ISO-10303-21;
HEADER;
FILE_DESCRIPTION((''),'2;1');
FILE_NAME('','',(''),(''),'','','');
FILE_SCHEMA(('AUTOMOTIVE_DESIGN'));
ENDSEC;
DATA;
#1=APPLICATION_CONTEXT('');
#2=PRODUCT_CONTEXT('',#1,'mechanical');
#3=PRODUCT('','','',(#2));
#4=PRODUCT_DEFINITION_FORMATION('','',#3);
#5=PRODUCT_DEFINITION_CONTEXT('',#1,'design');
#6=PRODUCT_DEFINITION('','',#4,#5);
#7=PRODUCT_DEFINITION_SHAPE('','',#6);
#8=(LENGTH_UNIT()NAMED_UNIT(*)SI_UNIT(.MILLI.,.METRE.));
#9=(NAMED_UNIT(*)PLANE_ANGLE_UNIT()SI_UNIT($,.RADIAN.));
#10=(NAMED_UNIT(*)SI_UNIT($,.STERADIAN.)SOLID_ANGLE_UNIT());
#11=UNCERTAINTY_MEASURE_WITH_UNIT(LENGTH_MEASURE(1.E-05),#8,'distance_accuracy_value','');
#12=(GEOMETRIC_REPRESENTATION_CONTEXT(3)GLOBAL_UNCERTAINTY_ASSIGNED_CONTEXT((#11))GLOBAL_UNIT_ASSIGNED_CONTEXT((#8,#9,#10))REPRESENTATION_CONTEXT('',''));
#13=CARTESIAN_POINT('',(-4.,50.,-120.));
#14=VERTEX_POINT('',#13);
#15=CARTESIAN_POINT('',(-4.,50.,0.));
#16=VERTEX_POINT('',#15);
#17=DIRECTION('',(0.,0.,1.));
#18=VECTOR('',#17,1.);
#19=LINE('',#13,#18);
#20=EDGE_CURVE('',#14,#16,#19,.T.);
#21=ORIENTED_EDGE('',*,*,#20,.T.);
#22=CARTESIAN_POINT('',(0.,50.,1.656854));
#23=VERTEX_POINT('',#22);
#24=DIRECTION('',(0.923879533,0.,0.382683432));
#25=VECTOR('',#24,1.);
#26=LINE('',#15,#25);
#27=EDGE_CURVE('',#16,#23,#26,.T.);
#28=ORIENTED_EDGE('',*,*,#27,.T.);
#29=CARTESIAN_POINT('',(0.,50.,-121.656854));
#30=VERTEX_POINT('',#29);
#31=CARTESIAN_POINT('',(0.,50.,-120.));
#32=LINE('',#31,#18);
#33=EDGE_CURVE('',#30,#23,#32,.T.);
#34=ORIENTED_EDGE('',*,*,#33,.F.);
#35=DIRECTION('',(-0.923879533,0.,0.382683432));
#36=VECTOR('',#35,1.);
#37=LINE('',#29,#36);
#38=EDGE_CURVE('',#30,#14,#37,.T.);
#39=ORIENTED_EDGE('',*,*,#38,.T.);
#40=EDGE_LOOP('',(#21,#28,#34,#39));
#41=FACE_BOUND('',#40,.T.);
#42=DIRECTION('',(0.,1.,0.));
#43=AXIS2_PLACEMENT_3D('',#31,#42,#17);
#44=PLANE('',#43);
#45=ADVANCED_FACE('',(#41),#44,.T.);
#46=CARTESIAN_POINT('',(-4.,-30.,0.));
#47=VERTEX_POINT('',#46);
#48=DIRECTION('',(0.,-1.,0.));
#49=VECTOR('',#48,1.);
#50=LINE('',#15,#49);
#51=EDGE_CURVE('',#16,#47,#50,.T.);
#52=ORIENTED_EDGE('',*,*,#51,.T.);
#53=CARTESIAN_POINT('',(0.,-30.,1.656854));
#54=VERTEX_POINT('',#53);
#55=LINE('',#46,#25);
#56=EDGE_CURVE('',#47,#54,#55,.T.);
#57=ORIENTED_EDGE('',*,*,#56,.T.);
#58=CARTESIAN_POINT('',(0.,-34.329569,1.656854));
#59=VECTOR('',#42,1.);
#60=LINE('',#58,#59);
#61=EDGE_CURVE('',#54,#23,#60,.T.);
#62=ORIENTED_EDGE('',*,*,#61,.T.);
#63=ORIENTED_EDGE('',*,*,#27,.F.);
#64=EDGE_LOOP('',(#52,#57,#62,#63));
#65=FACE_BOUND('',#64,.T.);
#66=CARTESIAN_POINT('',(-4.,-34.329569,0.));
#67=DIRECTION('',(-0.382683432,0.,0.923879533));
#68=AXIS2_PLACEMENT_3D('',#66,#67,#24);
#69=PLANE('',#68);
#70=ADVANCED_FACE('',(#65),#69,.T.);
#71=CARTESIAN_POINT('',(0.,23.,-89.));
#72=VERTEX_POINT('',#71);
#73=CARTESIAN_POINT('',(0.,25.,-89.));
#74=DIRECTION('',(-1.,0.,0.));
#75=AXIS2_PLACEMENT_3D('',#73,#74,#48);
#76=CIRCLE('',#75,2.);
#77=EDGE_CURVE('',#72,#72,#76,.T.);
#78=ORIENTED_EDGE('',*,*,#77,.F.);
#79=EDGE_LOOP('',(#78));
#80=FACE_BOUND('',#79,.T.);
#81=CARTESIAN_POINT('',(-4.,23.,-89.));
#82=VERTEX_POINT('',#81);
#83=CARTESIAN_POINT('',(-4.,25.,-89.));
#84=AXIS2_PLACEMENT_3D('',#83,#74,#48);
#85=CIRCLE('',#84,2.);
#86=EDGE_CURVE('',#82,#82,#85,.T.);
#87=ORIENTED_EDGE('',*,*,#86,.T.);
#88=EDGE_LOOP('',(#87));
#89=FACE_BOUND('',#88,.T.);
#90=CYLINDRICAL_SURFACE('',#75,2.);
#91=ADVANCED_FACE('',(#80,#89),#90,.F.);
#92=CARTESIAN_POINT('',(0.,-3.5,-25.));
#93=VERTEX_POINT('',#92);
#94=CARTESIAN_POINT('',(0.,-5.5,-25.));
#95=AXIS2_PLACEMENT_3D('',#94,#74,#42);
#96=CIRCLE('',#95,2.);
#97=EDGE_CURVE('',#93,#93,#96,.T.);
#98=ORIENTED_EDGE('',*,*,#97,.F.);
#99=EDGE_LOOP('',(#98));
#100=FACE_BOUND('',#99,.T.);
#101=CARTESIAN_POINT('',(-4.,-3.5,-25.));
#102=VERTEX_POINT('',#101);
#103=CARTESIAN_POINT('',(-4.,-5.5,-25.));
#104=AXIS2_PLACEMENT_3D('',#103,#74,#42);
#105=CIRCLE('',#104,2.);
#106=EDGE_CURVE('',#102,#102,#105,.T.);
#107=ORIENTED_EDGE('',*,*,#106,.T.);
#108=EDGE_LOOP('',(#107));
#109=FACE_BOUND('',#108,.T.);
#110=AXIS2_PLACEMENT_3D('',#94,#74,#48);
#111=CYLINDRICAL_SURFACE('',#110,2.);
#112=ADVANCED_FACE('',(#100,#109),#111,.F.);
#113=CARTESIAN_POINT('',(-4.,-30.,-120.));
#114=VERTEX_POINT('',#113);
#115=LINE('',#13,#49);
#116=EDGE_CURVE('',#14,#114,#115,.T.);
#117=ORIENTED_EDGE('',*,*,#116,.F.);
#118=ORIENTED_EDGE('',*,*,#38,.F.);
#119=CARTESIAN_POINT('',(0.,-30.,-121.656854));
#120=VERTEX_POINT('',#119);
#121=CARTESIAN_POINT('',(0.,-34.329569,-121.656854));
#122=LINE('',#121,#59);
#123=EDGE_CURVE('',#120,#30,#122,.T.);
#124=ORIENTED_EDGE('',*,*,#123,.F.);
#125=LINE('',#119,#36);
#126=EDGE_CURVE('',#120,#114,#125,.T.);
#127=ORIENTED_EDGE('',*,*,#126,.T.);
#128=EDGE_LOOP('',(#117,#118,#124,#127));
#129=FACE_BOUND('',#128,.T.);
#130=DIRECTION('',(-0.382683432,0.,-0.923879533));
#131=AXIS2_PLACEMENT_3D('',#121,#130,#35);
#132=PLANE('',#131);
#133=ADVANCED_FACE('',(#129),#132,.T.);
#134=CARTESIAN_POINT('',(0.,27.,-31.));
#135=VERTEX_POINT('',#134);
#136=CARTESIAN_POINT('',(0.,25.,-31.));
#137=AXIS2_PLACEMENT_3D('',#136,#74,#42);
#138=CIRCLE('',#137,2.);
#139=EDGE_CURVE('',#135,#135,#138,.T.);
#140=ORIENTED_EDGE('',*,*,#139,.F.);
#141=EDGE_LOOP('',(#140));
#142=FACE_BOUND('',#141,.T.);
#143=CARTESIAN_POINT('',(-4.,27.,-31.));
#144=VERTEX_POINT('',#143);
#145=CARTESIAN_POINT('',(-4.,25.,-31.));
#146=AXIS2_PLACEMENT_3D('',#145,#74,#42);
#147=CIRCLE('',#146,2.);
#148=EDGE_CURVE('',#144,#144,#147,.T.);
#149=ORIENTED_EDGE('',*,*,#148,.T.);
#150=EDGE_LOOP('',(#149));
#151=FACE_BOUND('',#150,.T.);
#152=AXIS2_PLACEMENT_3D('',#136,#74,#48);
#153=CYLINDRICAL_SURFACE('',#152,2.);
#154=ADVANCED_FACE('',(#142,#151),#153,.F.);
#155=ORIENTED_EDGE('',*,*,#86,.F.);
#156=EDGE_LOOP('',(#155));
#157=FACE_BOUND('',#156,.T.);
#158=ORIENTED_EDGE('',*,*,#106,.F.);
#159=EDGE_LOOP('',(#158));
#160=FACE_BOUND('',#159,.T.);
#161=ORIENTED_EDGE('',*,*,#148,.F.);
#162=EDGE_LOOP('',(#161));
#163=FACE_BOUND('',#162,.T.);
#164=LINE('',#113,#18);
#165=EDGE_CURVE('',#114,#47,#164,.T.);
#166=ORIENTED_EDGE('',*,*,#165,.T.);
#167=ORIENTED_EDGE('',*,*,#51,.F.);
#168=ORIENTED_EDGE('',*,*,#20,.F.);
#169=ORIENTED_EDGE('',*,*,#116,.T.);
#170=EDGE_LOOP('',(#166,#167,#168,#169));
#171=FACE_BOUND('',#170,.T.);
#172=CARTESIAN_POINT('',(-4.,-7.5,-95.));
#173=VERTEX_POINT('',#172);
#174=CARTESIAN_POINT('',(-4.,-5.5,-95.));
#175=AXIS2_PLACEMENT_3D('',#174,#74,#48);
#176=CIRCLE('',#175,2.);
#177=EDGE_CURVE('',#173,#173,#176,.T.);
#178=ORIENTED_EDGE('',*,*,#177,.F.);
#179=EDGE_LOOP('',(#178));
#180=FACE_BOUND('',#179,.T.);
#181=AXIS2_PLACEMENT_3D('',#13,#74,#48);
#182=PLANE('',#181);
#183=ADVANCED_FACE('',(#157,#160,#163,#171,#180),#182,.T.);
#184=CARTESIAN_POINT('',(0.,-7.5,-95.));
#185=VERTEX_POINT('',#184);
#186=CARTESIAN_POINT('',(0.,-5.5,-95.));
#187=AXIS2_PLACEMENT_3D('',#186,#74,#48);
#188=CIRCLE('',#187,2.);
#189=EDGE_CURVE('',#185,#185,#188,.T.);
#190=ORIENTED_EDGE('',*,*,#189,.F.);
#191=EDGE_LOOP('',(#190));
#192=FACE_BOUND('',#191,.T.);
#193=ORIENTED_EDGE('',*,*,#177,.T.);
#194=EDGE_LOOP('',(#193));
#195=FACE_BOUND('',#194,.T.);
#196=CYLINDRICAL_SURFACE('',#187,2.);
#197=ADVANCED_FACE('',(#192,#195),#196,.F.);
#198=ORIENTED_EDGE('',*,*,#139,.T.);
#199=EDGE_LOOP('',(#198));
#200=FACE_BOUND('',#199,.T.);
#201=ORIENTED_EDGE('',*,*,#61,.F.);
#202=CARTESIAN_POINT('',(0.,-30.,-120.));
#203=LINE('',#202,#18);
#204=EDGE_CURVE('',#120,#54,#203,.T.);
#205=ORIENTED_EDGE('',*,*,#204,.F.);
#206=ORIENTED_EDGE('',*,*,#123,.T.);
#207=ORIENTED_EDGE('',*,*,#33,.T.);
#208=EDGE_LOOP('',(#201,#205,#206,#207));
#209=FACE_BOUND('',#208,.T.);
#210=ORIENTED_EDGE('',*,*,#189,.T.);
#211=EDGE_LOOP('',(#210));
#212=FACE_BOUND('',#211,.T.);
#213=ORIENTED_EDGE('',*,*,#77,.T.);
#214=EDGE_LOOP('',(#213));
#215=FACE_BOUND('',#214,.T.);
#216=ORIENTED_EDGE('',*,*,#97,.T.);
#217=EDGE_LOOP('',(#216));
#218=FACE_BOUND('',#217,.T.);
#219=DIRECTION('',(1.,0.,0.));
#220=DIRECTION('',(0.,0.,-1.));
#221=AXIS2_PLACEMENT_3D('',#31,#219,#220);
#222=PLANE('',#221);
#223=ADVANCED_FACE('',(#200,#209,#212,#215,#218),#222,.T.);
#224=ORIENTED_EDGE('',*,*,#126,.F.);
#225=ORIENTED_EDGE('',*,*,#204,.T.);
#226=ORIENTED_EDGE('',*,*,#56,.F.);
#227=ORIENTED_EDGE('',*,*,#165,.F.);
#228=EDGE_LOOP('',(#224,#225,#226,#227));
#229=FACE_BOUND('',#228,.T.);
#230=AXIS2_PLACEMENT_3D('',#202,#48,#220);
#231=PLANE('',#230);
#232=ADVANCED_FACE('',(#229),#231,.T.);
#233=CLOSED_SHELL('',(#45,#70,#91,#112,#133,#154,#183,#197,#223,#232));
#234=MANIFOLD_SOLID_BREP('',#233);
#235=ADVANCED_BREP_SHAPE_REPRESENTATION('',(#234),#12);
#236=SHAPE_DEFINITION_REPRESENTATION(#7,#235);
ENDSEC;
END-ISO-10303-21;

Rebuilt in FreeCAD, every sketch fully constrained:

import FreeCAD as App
import Part
import Sketcher
from FreeCAD import Vector
Q = App.Units.Quantity


def add_polygon(sketch, points):
    """Adds a closed chain of lines whose ends are joined by coincident constraints."""
    first, n = sketch.GeometryCount, len(points)
    for a, b in zip(points, points[1:] + points[:1]):
        sketch.addGeometry(Part.LineSegment(App.Vector(*a, 0), App.Vector(*b, 0)), False)
    for i in range(n):
        sketch.addConstraint(Sketcher.Constraint("Coincident", first + i, 2, first + (i + 1) % n, 1))

doc = App.newDocument("Part")
body = doc.addObject("PartDesign::Body", "Body")

sketch1 = body.newObject("Sketcher::SketchObject", "Sketch")
sketch1.AttachmentSupport = (doc.getObject("XY_Plane"), [""])
sketch1.MapMode = "FlatFace"
add_polygon(sketch1, [(-4, 50), (-4, -30), (0, -30), (0, 50)])
sketch1.addConstraint([
    Sketcher.Constraint("Vertical", 0),
    Sketcher.Constraint("Horizontal", 1),
    Sketcher.Constraint("Vertical", 2),
    Sketcher.Constraint("Horizontal", 3),
    Sketcher.Constraint("PointOnObject", 1, 2, -2),
    Sketcher.Constraint("DistanceX", 1, 1, 1, 2, 4.0),
    Sketcher.Constraint("DistanceY", 0, 2, 0, 1, 80.0),
    Sketcher.Constraint("DistanceY", 0, 2, -1, 1, 30.0),
])
pad1 = body.newObject("PartDesign::Pad", "Pad")
pad1.Profile = sketch1
pad1.Length = 120
pad1.Reversed = True

sketch2 = body.newObject("Sketcher::SketchObject", "Sketch001")
sketch2.AttachmentSupport = (doc.getObject("YZ_Plane"), [""])
sketch2.MapMode = "FlatFace"
sketch2.AttachmentOffset = App.Placement(Vector(0, 0, -4), App.Rotation())
sketch2.addGeometry([
    Part.Circle(Vector(25, -89, 0), Vector(0, 0, 1), 2),
    Part.Circle(Vector(-5.5, -95, 0), Vector(0, 0, 1), 2),
    Part.Circle(Vector(-5.5, -25, 0), Vector(0, 0, 1), 2),
    Part.Circle(Vector(25, -31, 0), Vector(0, 0, 1), 2),
], False)
sketch2.addConstraint([
    Sketcher.Constraint("Equal", 0, 1),
    Sketcher.Constraint("Equal", 1, 2),
    Sketcher.Constraint("Equal", 2, 3),
    Sketcher.Constraint("Vertical", 1, 3, 2, 3),
    Sketcher.Constraint("Vertical", 0, 3, 3, 3),
    Sketcher.Constraint("Diameter", 0, 4.0),
    Sketcher.Constraint("DistanceX", -1, 1, 0, 3, 25.0),
    Sketcher.Constraint("DistanceY", 0, 3, -1, 1, 89.0),
    Sketcher.Constraint("DistanceY", 1, 3, -1, 1, 95.0),
    Sketcher.Constraint("DistanceY", 2, 3, -1, 1, 25.0),
    Sketcher.Constraint("DistanceY", 3, 3, -1, 1, 31.0),
    Sketcher.Constraint("DistanceX", 1, 3, -1, 1, 5.5),
])
pocket1 = body.newObject("PartDesign::Pocket", "Pocket")
pocket1.Profile = sketch2
pocket1.Type = "ThroughAll"
pocket1.Reversed = True

sketch3 = body.newObject("Sketcher::SketchObject", "Sketch002")
sketch3.AttachmentSupport = (doc.getObject("XZ_Plane"), [""])
sketch3.MapMode = "FlatFace"
sketch3.AttachmentOffset = App.Placement(Vector(0, 0, -50), App.Rotation())
add_polygon(sketch3, [(-4, 0), (0, 1.7), (0, 0)])
add_polygon(sketch3, [(-4, -120), (0, -120), (0, -121.7)])
sketch3.addConstraint([
    Sketcher.Constraint("Vertical", 1),
    Sketcher.Constraint("Horizontal", 2),
    Sketcher.Constraint("Horizontal", 3),
    Sketcher.Constraint("Vertical", 4),
    Sketcher.Constraint("Coincident", 1, 2, -1, 1),
    Sketcher.Constraint("PointOnObject", 3, 2, -2),
    Sketcher.Constraint("Vertical", 2, 2, 5, 2),
    Sketcher.Constraint("Equal", 1, 4),
    Sketcher.Constraint("DistanceX", 2, 2, 2, 1, 4.0),
    Sketcher.Constraint("DistanceY", 3, 2, -1, 1, 120.0),
    Sketcher.Constraint("Angle", 0, Q("22.5 deg")),
])
pad2 = body.newObject("PartDesign::Pad", "Pad001")
pad2.Profile = sketch3
pad2.Length = 80

doc.recompute()
